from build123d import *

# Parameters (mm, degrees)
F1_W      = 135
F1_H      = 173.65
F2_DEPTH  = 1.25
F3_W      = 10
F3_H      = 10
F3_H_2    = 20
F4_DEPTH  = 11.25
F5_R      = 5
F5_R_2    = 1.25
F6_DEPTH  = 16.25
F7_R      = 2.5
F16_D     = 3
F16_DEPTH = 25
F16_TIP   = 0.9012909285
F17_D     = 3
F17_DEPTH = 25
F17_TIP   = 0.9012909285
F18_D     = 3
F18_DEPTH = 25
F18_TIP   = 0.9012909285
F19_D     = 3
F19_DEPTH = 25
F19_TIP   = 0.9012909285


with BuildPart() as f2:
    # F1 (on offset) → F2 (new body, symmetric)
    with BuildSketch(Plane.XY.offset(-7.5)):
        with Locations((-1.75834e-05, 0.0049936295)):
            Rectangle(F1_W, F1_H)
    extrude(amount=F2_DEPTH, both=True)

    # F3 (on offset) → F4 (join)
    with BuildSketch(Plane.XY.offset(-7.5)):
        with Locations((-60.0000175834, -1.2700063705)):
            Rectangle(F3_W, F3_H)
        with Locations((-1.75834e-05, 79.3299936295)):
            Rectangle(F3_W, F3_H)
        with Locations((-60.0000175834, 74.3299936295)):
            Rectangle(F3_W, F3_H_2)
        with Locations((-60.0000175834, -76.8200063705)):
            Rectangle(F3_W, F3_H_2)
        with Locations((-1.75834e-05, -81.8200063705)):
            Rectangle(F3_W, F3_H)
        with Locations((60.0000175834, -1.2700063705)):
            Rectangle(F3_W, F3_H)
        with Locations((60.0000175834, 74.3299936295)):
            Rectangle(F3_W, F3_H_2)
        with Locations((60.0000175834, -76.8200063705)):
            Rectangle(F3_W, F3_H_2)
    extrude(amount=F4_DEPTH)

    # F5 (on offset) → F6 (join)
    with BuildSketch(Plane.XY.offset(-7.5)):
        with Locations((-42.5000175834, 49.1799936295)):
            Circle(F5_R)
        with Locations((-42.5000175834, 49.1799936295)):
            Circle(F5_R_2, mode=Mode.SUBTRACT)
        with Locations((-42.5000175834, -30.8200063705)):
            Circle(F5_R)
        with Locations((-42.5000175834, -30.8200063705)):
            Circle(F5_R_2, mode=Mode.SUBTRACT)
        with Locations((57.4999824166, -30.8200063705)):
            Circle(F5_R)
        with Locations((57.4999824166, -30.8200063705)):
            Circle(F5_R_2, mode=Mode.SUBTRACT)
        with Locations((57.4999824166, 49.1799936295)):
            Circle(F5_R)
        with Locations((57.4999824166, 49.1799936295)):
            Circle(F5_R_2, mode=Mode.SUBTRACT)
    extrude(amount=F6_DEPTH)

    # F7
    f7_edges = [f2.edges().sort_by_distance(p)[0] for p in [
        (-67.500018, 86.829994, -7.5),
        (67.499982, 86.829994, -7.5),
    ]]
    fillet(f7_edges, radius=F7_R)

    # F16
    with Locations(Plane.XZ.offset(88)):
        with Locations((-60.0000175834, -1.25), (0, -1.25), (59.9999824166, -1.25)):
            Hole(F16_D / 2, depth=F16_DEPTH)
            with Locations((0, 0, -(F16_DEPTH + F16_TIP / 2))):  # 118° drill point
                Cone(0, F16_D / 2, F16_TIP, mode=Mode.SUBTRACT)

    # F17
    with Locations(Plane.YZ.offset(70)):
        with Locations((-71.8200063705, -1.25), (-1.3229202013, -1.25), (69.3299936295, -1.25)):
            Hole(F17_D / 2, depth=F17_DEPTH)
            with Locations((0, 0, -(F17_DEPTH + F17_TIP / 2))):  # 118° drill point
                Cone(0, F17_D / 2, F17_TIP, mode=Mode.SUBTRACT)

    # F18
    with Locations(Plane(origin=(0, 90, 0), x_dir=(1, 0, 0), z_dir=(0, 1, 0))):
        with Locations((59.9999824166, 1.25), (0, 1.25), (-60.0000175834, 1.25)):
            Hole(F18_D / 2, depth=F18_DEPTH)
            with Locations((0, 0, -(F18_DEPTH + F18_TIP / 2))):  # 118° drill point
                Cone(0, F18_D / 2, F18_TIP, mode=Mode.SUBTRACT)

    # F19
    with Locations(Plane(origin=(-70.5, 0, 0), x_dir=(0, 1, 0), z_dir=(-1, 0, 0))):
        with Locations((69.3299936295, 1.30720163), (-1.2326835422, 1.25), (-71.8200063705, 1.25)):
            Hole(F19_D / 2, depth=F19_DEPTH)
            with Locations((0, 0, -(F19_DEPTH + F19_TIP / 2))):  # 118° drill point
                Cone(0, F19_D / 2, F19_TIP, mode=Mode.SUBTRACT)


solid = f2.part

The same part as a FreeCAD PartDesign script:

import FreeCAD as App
import Part
import Sketcher

V = App.Vector


def edges_at(feature, points):
    """Names of the edges that pass closest to the given points."""
    edges = feature.Shape.Edges
    near = lambda p: min(range(len(edges)), key=lambda i: edges[i].distToShape(Part.Vertex(*p))[0])
    return sorted({f"Edge{near(p) + 1}" for p in points})


def add_polygon(sketch, points):
    """Adds a closed chain of lines whose ends are joined by coincident constraints."""
    first, n = sketch.GeometryCount, len(points)
    for a, b in zip(points, points[1:] + points[:1]):
        sketch.addGeometry(Part.LineSegment(App.Vector(*a, 0), App.Vector(*b, 0)), False)
    for i in range(n):
        sketch.addConstraint(Sketcher.Constraint("Coincident", first + i, 2, first + (i + 1) % n, 1))

doc = App.newDocument("Part")
body = doc.addObject("PartDesign::Body", "Body")

# Sketch on XY plane
sketch1 = body.newObject("Sketcher::SketchObject", "Sketch")
sketch1.AttachmentSupport = (doc.getObject("XY_Plane"), [""])
sketch1.MapMode = "FlatFace"
sketch1.AttachmentOffset = App.Placement(V(0, 0, -7.5), App.Rotation())
add_polygon(sketch1, [(-68, 87), (-68, -87), (67, -87), (67, 87)])  # lines 0-3
sketch1.addConstraint(Sketcher.Constraint("Vertical", 0))
sketch1.addConstraint(Sketcher.Constraint("Horizontal", 1))
sketch1.addConstraint(Sketcher.Constraint("Vertical", 2))
sketch1.addConstraint(Sketcher.Constraint("Horizontal", 3))
sketch1.addConstraint(Sketcher.Constraint("DistanceX", 1, 1, 1, 2, 135.0))
sketch1.addConstraint(Sketcher.Constraint("DistanceY", 0, 2, 0, 1, 173.65))
sketch1.addConstraint(Sketcher.Constraint("DistanceX", 0, 2, -1, 1, 67.500018))
sketch1.addConstraint(Sketcher.Constraint("DistanceY", 0, 2, -1, 1, 86.820006))
pad1 = body.newObject("PartDesign::Pad", "Pad")
pad1.Profile = sketch1
pad1.Length = 2.5
pad1.Midplane = True

# Sketch on XY plane
sketch2 = body.newObject("Sketcher::SketchObject", "Sketch001")
sketch2.AttachmentSupport = (doc.getObject("XY_Plane"), [""])
sketch2.MapMode = "FlatFace"
sketch2.AttachmentOffset = App.Placement(V(0, 0, -7.5), App.Rotation())
add_polygon(sketch2, [(-65, 4), (-65, -6), (-55, -6), (-55, 4)])  # lines 0-3
add_polygon(sketch2, [(-5, 84), (-5, 74), (5, 74), (5, 84)])  # lines 4-7
add_polygon(sketch2, [(-65, 84), (-65, 64), (-55, 64), (-55, 84)])  # lines 8-11
add_polygon(sketch2, [(-65, -67), (-65, -87), (-55, -87), (-55, -67)])  # lines 12-15
add_polygon(sketch2, [(-5, -77), (-5, -87), (5, -87), (5, -77)])  # lines 16-19
add_polygon(sketch2, [(55, 4), (55, -6), (65, -6), (65, 4)])  # lines 20-23
add_polygon(sketch2, [(55, 84), (55, 64), (65, 64), (65, 84)])  # lines 24-27
add_polygon(sketch2, [(55, -67), (55, -87), (65, -87), (65, -67)])  # lines 28-31
sketch2.addConstraint(Sketcher.Constraint("Vertical", 0))
sketch2.addConstraint(Sketcher.Constraint("Horizontal", 1))
sketch2.addConstraint(Sketcher.Constraint("Vertical", 2))
sketch2.addConstraint(Sketcher.Constraint("Horizontal", 3))
sketch2.addConstraint(Sketcher.Constraint("Vertical", 4))
sketch2.addConstraint(Sketcher.Constraint("Horizontal", 5))
sketch2.addConstraint(Sketcher.Constraint("Vertical", 6))
sketch2.addConstraint(Sketcher.Constraint("Horizontal", 7))
sketch2.addConstraint(Sketcher.Constraint("Vertical", 8))
sketch2.addConstraint(Sketcher.Constraint("Horizontal", 9))
sketch2.addConstraint(Sketcher.Constraint("Vertical", 10))
sketch2.addConstraint(Sketcher.Constraint("Horizontal", 11))
sketch2.addConstraint(Sketcher.Constraint("Vertical", 12))
sketch2.addConstraint(Sketcher.Constraint("Horizontal", 13))
sketch2.addConstraint(Sketcher.Constraint("Vertical", 14))
sketch2.addConstraint(Sketcher.Constraint("Horizontal", 15))
sketch2.addConstraint(Sketcher.Constraint("Vertical", 16))
sketch2.addConstraint(Sketcher.Constraint("Horizontal", 17))
sketch2.addConstraint(Sketcher.Constraint("Vertical", 18))
sketch2.addConstraint(Sketcher.Constraint("Horizontal", 19))
sketch2.addConstraint(Sketcher.Constraint("Vertical", 20))
sketch2.addConstraint(Sketcher.Constraint("Horizontal", 21))
sketch2.addConstraint(Sketcher.Constraint("Vertical", 22))
sketch2.addConstraint(Sketcher.Constraint("Horizontal", 23))
sketch2.addConstraint(Sketcher.Constraint("Vertical", 24))
sketch2.addConstraint(Sketcher.Constraint("Horizontal", 25))
sketch2.addConstraint(Sketcher.Constraint("Vertical", 26))
sketch2.addConstraint(Sketcher.Constraint("Horizontal", 27))
sketch2.addConstraint(Sketcher.Constraint("Vertical", 28))
sketch2.addConstraint(Sketcher.Constraint("Horizontal", 29))
sketch2.addConstraint(Sketcher.Constraint("Vertical", 30))
sketch2.addConstraint(Sketcher.Constraint("Horizontal", 31))
sketch2.addConstraint(Sketcher.Constraint("Symmetric", 1, 2, 20, 2, -2))
sketch2.addConstraint(Sketcher.Constraint("Symmetric", 3, 2, 22, 2, -2))
sketch2.addConstraint(Sketcher.Constraint("Symmetric", 9, 2, 24, 2, -2))
sketch2.addConstraint(Sketcher.Constraint("Symmetric", 11, 2, 26, 2, -2))
sketch2.addConstraint(Sketcher.Constraint("Symmetric", 13, 2, 28, 2, -2))
sketch2.addConstraint(Sketcher.Constraint("Symmetric", 15, 2, 30, 2, -2))
sketch2.addConstraint(Sketcher.Constraint("Horizontal", 7, 2, 10, 2))
sketch2.addConstraint(Sketcher.Constraint("Horizontal", 13, 2, 16, 2))
sketch2.addConstraint(Sketcher.Constraint("Vertical", 3, 2, 8, 2))
sketch2.addConstraint(Sketcher.Constraint("Vertical", 2, 2, 9, 2))
sketch2.addConstraint(Sketcher.Constraint("Vertical", 11, 2, 12, 2))
sketch2.addConstraint(Sketcher.Constraint("Vertical", 10, 2, 13, 2))
sketch2.addConstraint(Sketcher.Constraint("Vertical", 7, 2, 16, 2))
sketch2.addConstraint(Sketcher.Constraint("Vertical", 6, 2, 17, 2))
sketch2.addConstraint(Sketcher.Constraint("Equal", 3, 5))
sketch2.addConstraint(Sketcher.Constraint("Equal", 31, 0))
sketch2.addConstraint(Sketcher.Constraint("Equal", 2, 4))
sketch2.addConstraint(Sketcher.Constraint("Equal", 10, 12))
sketch2.addConstraint(Sketcher.Constraint("Equal", 6, 16))
sketch2.addConstraint(Sketcher.Constraint("DistanceX", 1, 1, 1, 2, 10.0))
sketch2.addConstraint(Sketcher.Constraint("DistanceY", 8, 2, 8, 1, 20.0))
sketch2.addConstraint(Sketcher.Constraint("DistanceX", 2, 2, 4, 2, 50.0))
sketch2.addConstraint(Sketcher.Constraint("DistanceY", 2, 2, 4, 2, 70.6))
sketch2.addConstraint(Sketcher.Constraint("DistanceY", 12, 2, 0, 2, 80.55))
sketch2.addConstraint(Sketcher.Constraint("DistanceX", 0, 2, -1, 1, 65.000018))
sketch2.addConstraint(Sketcher.Constraint("DistanceY", 0, 2, -1, 1, 6.270006))
pad2 = body.newObject("PartDesign::Pad", "Pad001")
pad2.Profile = sketch2
pad2.Length = 11.25

# Sketch on XY plane
sketch3 = body.newObject("Sketcher::SketchObject", "Sketch002")
sketch3.AttachmentSupport = (doc.getObject("XY_Plane"), [""])
sketch3.MapMode = "FlatFace"
sketch3.AttachmentOffset = App.Placement(V(0, 0, -7.5), App.Rotation())
sketch3.addGeometry(Part.Circle(V(-42.5, 49.2, 0), V(0, 0, 1), 5), False)
sketch3.addGeometry(Part.Circle(V(-42.5, 49.2, 0), V(0, 0, 1), 1.2), False)
sketch3.addGeometry(Part.Circle(V(-42.5, -30.8, 0), V(0, 0, 1), 5), False)
sketch3.addGeometry(Part.Circle(V(-42.5, -30.8, 0), V(0, 0, 1), 1.2), False)
sketch3.addGeometry(Part.Circle(V(57.5, -30.8, 0), V(0, 0, 1), 5), False)
sketch3.addGeometry(Part.Circle(V(57.5, -30.8, 0), V(0, 0, 1), 1.2), False)
sketch3.addGeometry(Part.Circle(V(57.5, 49.2, 0), V(0, 0, 1), 5), False)
sketch3.addGeometry(Part.Circle(V(57.5, 49.2, 0), V(0, 0, 1), 1.2), False)
sketch3.addConstraint(Sketcher.Constraint("Coincident", 1, 3, 0, 3))
sketch3.addConstraint(Sketcher.Constraint("Coincident", 3, 3, 2, 3))
sketch3.addConstraint(Sketcher.Constraint("Coincident", 5, 3, 4, 3))
sketch3.addConstraint(Sketcher.Constraint("Coincident", 7, 3, 6, 3))
sketch3.addConstraint(Sketcher.Constraint("Equal", 0, 2))
sketch3.addConstraint(Sketcher.Constraint("Equal", 1, 3))
sketch3.addConstraint(Sketcher.Constraint("Equal", 2, 4))
sketch3.addConstraint(Sketcher.Constraint("Equal", 3, 5))
sketch3.addConstraint(Sketcher.Constraint("Equal", 4, 6))
sketch3.addConstraint(Sketcher.Constraint("Equal", 5, 7))
sketch3.addConstraint(Sketcher.Constraint("Horizontal", 3, 3, 4, 3))
sketch3.addConstraint(Sketcher.Constraint("Horizontal", 1, 3, 6, 3))
sketch3.addConstraint(Sketcher.Constraint("Vertical", 1, 3, 2, 3))
sketch3.addConstraint(Sketcher.Constraint("Vertical", 5, 3, 6, 3))
sketch3.addConstraint(Sketcher.Constraint("Diameter", 0, 10.0))
sketch3.addConstraint(Sketcher.Constraint("Diameter", 1, 2.5))
sketch3.addConstraint(Sketcher.Constraint("DistanceY", 2, 3, 0, 3, 80.0))
sketch3.addConstraint(Sketcher.Constraint("DistanceX", 2, 3, 4, 3, 100.0))
sketch3.addConstraint(Sketcher.Constraint("DistanceX", 0, 3, -1, 1, 42.500018))
sketch3.addConstraint(Sketcher.Constraint("DistanceY", -1, 1, 0, 3, 49.179994))
pad3 = body.newObject("PartDesign::Pad", "Pad002")
pad3.Profile = sketch3
pad3.Length = 16.25
doc.recompute()

fillet = body.newObject("PartDesign::Fillet", "Fillet")
fillet.Base = (pad3, edges_at(pad3, [(-67.5, 86.83, -7.5), (67.5, 86.83, -7.5)]))
fillet.Radius = 2.5

# Sketch on XZ plane
sketch4 = body.newObject("Sketcher::SketchObject", "Sketch003")
sketch4.AttachmentSupport = (doc.getObject("XZ_Plane"), [""])
sketch4.MapMode = "FlatFace"
sketch4.AttachmentOffset = App.Placement(V(0, 0, 88), App.Rotation())
sketch4.addGeometry(Part.Circle(V(-60, -1.2, 0), V(0, 0, 1), 1.5), False)
sketch4.addGeometry(Part.Circle(V(0, -1.2, 0), V(0, 0, 1), 1.5), False)
sketch4.addGeometry(Part.Circle(V(60, -1.2, 0), V(0, 0, 1), 1.5), False)
sketch4.addConstraint(Sketcher.Constraint("Equal", 0, 1))
sketch4.addConstraint(Sketcher.Constraint("Equal", 1, 2))
sketch4.addConstraint(Sketcher.Constraint("PointOnObject", 1, 3, -2))
sketch4.addConstraint(Sketcher.Constraint("Horizontal", 0, 3, 1, 3))
sketch4.addConstraint(Sketcher.Constraint("Horizontal", 1, 3, 2, 3))
sketch4.addConstraint(Sketcher.Constraint("Diameter", 0, 3.0))
sketch4.addConstraint(Sketcher.Constraint("DistanceX", 0, 3, 2, 3, 120.0))
sketch4.addConstraint(Sketcher.Constraint("DistanceY", 0, 3, -1, 1, 1.25))
sketch4.addConstraint(Sketcher.Constraint("DistanceX", 0, 3, -1, 1, 60.000018))
doc.recompute()
hole = body.newObject("PartDesign::Hole", "Hole")
hole.Profile = sketch4
hole.ThreadType = "None"
hole.Diameter = 3
hole.DepthType = "Dimension"
hole.Depth = 25
hole.DrillPoint = "Angled"
hole.DrillPointAngle = 118

# Sketch on YZ plane
sketch5 = body.newObject("Sketcher::SketchObject", "Sketch004")
sketch5.AttachmentSupport = (doc.getObject("YZ_Plane"), [""])
sketch5.MapMode = "FlatFace"
sketch5.AttachmentOffset = App.Placement(V(0, 0, 70), App.Rotation())
sketch5.addGeometry(Part.Circle(V(-71.8, -1.2, 0), V(0, 0, 1), 1.5), False)
sketch5.addGeometry(Part.Circle(V(-1.3, -1.2, 0), V(0, 0, 1), 1.5), False)
sketch5.addGeometry(Part.Circle(V(69.3, -1.2, 0), V(0, 0, 1), 1.5), False)
sketch5.addConstraint(Sketcher.Constraint("Equal", 0, 1))
sketch5.addConstraint(Sketcher.Constraint("Equal", 1, 2))
sketch5.addConstraint(Sketcher.Constraint("Horizontal", 0, 3, 1, 3))
sketch5.addConstraint(Sketcher.Constraint("Horizontal", 1, 3, 2, 3))
sketch5.addConstraint(Sketcher.Constraint("Diameter", 0, 3.0))
sketch5.addConstraint(Sketcher.Constraint("DistanceY", 0, 3, -1, 1, 1.25))
sketch5.addConstraint(Sketcher.Constraint("DistanceX", 0, 3, 2, 3, 141.15))
sketch5.addConstraint(Sketcher.Constraint("DistanceX", 1, 3, -1, 1, 1.32292))
sketch5.addConstraint(Sketcher.Constraint("DistanceX", 0, 3, -1, 1, 71.820006))
doc.recompute()
hole2 = body.newObject("PartDesign::Hole", "Hole001")
hole2.Profile = sketch5
hole2.ThreadType = "None"
hole2.Diameter = 3
hole2.DepthType = "Dimension"
hole2.Depth = 25
hole2.DrillPoint = "Angled"
hole2.DrillPointAngle = 118

# Sketch on XZ plane
sketch6 = body.newObject("Sketcher::SketchObject", "Sketch005")
sketch6.AttachmentSupport = (doc.getObject("XZ_Plane"), [""])
sketch6.MapMode = "FlatFace"
sketch6.AttachmentOffset = App.Placement(V(0, 0, -90), App.Rotation())
sketch6.addGeometry(Part.Circle(V(60, -1.2, 0), V(0, 0, 1), 1.5), False)
sketch6.addGeometry(Part.Circle(V(0, -1.2, 0), V(0, 0, 1), 1.5), False)
sketch6.addGeometry(Part.Circle(V(-60, -1.2, 0), V(0, 0, 1), 1.5), False)
sketch6.addConstraint(Sketcher.Constraint("Equal", 0, 1))
sketch6.addConstraint(Sketcher.Constraint("Equal", 1, 2))
sketch6.addConstraint(Sketcher.Constraint("PointOnObject", 1, 3, -2))
sketch6.addConstraint(Sketcher.Constraint("Horizontal", 0, 3, 1, 3))
sketch6.addConstraint(Sketcher.Constraint("Horizontal", 1, 3, 2, 3))
sketch6.addConstraint(Sketcher.Constraint("Diameter", 0, 3.0))
sketch6.addConstraint(Sketcher.Constraint("DistanceX", 2, 3, 0, 3, 120.0))
sketch6.addConstraint(Sketcher.Constraint("DistanceY", 0, 3, -1, 1, 1.25))
sketch6.addConstraint(Sketcher.Constraint("DistanceX", -1, 1, 0, 3, 59.999982))
doc.recompute()
hole3 = body.newObject("PartDesign::Hole", "Hole002")
hole3.Profile = sketch6
hole3.ThreadType = "None"
hole3.Diameter = 3
hole3.DepthType = "Dimension"
hole3.Depth = 25
hole3.DrillPoint = "Angled"
hole3.DrillPointAngle = 118
hole3.Reversed = True

# Sketch on YZ plane
sketch7 = body.newObject("Sketcher::SketchObject", "Sketch006")
sketch7.AttachmentSupport = (doc.getObject("YZ_Plane"), [""])
sketch7.MapMode = "FlatFace"
sketch7.AttachmentOffset = App.Placement(V(0, 0, -70.5), App.Rotation())
sketch7.addGeometry(Part.Circle(V(69.3, -1.3, 0), V(0, 0, 1), 1.5), False)
sketch7.addGeometry(Part.Circle(V(-1.2, -1.2, 0), V(0, 0, 1), 1.5), False)
sketch7.addGeometry(Part.Circle(V(-71.8, -1.2, 0), V(0, 0, 1), 1.5), False)
sketch7.addConstraint(Sketcher.Constraint("Equal", 0, 1))
sketch7.addConstraint(Sketcher.Constraint("Equal", 1, 2))
sketch7.addConstraint(Sketcher.Constraint("Horizontal", 1, 3, 2, 3))
sketch7.addConstraint(Sketcher.Constraint("Diameter", 0, 3.0))
sketch7.addConstraint(Sketcher.Constraint("DistanceY", 1, 3, -1, 1, 1.25))
sketch7.addConstraint(Sketcher.Constraint("DistanceX", 2, 3, 0, 3, 141.15))
sketch7.addConstraint(Sketcher.Constraint("DistanceY", 0, 3, -1, 1, 1.307202))
sketch7.addConstraint(Sketcher.Constraint("DistanceX", -1, 1, 0, 3, 69.329994))
sketch7.addConstraint(Sketcher.Constraint("DistanceX", 1, 3, -1, 1, 1.232684))
doc.recompute()
hole4 = body.newObject("PartDesign::Hole", "Hole003")
hole4.Profile = sketch7
hole4.ThreadType = "None"
hole4.Diameter = 3
hole4.DepthType = "Dimension"
hole4.Depth = 25
hole4.DrillPoint = "Angled"
hole4.DrillPointAngle = 118
hole4.Reversed = True

doc.recompute()
